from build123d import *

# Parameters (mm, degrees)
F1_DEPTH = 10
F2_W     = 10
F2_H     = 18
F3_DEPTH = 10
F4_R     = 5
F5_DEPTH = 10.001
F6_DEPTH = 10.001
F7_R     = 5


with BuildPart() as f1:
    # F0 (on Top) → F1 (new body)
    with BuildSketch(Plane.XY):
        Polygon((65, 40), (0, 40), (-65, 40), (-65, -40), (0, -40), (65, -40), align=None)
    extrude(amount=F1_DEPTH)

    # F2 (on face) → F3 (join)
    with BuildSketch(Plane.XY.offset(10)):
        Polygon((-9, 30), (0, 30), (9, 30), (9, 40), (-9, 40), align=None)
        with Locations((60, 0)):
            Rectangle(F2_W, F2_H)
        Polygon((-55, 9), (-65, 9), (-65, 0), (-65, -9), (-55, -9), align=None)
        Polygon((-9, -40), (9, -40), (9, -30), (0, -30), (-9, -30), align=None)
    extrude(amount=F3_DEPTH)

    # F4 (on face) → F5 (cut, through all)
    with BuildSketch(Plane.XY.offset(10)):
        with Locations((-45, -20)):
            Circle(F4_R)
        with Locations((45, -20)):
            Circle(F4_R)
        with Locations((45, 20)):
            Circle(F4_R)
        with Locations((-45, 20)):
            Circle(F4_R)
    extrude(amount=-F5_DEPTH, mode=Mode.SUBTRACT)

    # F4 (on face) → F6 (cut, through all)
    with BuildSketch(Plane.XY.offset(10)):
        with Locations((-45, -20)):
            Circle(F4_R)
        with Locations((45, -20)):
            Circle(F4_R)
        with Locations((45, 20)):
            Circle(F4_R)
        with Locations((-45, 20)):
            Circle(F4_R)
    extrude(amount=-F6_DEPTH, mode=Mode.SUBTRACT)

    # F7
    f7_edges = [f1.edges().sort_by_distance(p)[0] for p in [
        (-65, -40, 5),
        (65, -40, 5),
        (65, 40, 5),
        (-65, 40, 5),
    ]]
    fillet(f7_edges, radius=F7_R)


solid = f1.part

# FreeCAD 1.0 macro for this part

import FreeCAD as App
import Part
import Sketcher
from FreeCAD import Vector


def edges_at(feature, points):
    """Names of the edges that pass closest to the given points."""
    edges = feature.Shape.Edges
    near = lambda p: min(range(len(edges)), key=lambda i: edges[i].distToShape(Part.Vertex(*p))[0])
    return sorted({f"Edge{near(p) + 1}" for p in points})

doc = App.newDocument("Part")
body = doc.addObject("PartDesign::Body", "Body")

# Sketch on XY plane
sketch1 = doc.addObject("Sketcher::SketchObject", "Sketch")
body.addObject(sketch1)
sketch1.AttachmentSupport = (doc.XY_Plane, [""])
sketch1.MapMode = "FlatFace"
sketch1.addGeometry(Part.LineSegment(Vector(65, 40, 0), Vector(-65, 40, 0)), False)
sketch1.addGeometry(Part.LineSegment(Vector(-65, 40, 0), Vector(-65, -40, 0)), False)
sketch1.addGeometry(Part.LineSegment(Vector(-65, -40, 0), Vector(65, -40, 0)), False)
sketch1.addGeometry(Part.LineSegment(Vector(65, -40, 0), Vector(65, 40, 0)), False)
sketch1.addConstraint(Sketcher.Constraint("Coincident", 0, 2, 1, 1))
sketch1.addConstraint(Sketcher.Constraint("Coincident", 1, 2, 2, 1))
sketch1.addConstraint(Sketcher.Constraint("Coincident", 2, 2, 3, 1))
sketch1.addConstraint(Sketcher.Constraint("Coincident", 3, 2, 0, 1))
sketch1.addConstraint(Sketcher.Constraint("Horizontal", 0))
sketch1.addConstraint(Sketcher.Constraint("Vertical", 1))
sketch1.addConstraint(Sketcher.Constraint("Horizontal", 2))
sketch1.addConstraint(Sketcher.Constraint("Vertical", 3))
sketch1.addConstraint(Sketcher.Constraint("Symmetric", 0, 2, 2, 2, -1, 1))
sketch1.addConstraint(Sketcher.Constraint("DistanceX", 0, 2, 0, 1, 130.0))
sketch1.addConstraint(Sketcher.Constraint("DistanceY", 1, 2, 1, 1, 80.0))
pad1 = doc.addObject("PartDesign::Pad", "Pad")
body.addObject(pad1)
pad1.Profile = sketch1
pad1.Length = 10

# Sketch on XY plane
sketch2 = doc.addObject("Sketcher::SketchObject", "Sketch001")
body.addObject(sketch2)
sketch2.AttachmentSupport = (doc.XY_Plane, [""])
sketch2.MapMode = "FlatFace"
sketch2.AttachmentOffset = App.Placement(Vector(0, 0, 10), App.Rotation())
sketch2.addGeometry(Part.LineSegment(Vector(-9, 30, 0), Vector(9, 30, 0)), False)
sketch2.addGeometry(Part.LineSegment(Vector(9, 30, 0), Vector(9, 40, 0)), False)
sketch2.addGeometry(Part.LineSegment(Vector(9, 40, 0), Vector(-9, 40, 0)), False)
sketch2.addGeometry(Part.LineSegment(Vector(-9, 40, 0), Vector(-9, 30, 0)), False)
sketch2.addGeometry(Part.LineSegment(Vector(55, 9, 0), Vector(55, -9, 0)), False)
sketch2.addGeometry(Part.LineSegment(Vector(55, -9, 0), Vector(65, -9, 0)), False)
sketch2.addGeometry(Part.LineSegment(Vector(65, -9, 0), Vector(65, 9, 0)), False)
sketch2.addGeometry(Part.LineSegment(Vector(65, 9, 0), Vector(55, 9, 0)), False)
sketch2.addGeometry(Part.LineSegment(Vector(-55, 9, 0), Vector(-65, 9, 0)), False)
sketch2.addGeometry(Part.LineSegment(Vector(-65, 9, 0), Vector(-65, -9, 0)), False)
sketch2.addGeometry(Part.LineSegment(Vector(-65, -9, 0), Vector(-55, -9, 0)), False)
sketch2.addGeometry(Part.LineSegment(Vector(-55, -9, 0), Vector(-55, 9, 0)), False)
sketch2.addGeometry(Part.LineSegment(Vector(-9, -40, 0), Vector(9, -40, 0)), False)
sketch2.addGeometry(Part.LineSegment(Vector(9, -40, 0), Vector(9, -30, 0)), False)
sketch2.addGeometry(Part.LineSegment(Vector(9, -30, 0), Vector(-9, -30, 0)), False)
sketch2.addGeometry(Part.LineSegment(Vector(-9, -30, 0), Vector(-9, -40, 0)), False)
sketch2.addConstraint(Sketcher.Constraint("Coincident", 0, 2, 1, 1))
sketch2.addConstraint(Sketcher.Constraint("Coincident", 1, 2, 2, 1))
sketch2.addConstraint(Sketcher.Constraint("Coincident", 2, 2, 3, 1))
sketch2.addConstraint(Sketcher.Constraint("Coincident", 3, 2, 0, 1))
sketch2.addConstraint(Sketcher.Constraint("Coincident", 4, 2, 5, 1))
sketch2.addConstraint(Sketcher.Constraint("Coincident", 5, 2, 6, 1))
sketch2.addConstraint(Sketcher.Constraint("Coincident", 6, 2, 7, 1))
sketch2.addConstraint(Sketcher.Constraint("Coincident", 7, 2, 4, 1))
sketch2.addConstraint(Sketcher.Constraint("Coincident", 8, 2, 9, 1))
sketch2.addConstraint(Sketcher.Constraint("Coincident", 9, 2, 10, 1))
sketch2.addConstraint(Sketcher.Constraint("Coincident", 10, 2, 11, 1))
sketch2.addConstraint(Sketcher.Constraint("Coincident", 11, 2, 8, 1))
sketch2.addConstraint(Sketcher.Constraint("Coincident", 12, 2, 13, 1))
sketch2.addConstraint(Sketcher.Constraint("Coincident", 13, 2, 14, 1))
sketch2.addConstraint(Sketcher.Constraint("Coincident", 14, 2, 15, 1))
sketch2.addConstraint(Sketcher.Constraint("Coincident", 15, 2, 12, 1))
sketch2.addConstraint(Sketcher.Constraint("Horizontal", 0))
sketch2.addConstraint(Sketcher.Constraint("Vertical", 1))
sketch2.addConstraint(Sketcher.Constraint("Horizontal", 2))
sketch2.addConstraint(Sketcher.Constraint("Vertical", 3))
sketch2.addConstraint(Sketcher.Constraint("Vertical", 4))
sketch2.addConstraint(Sketcher.Constraint("Horizontal", 5))
sketch2.addConstraint(Sketcher.Constraint("Vertical", 6))
sketch2.addConstraint(Sketcher.Constraint("Horizontal", 7))
sketch2.addConstraint(Sketcher.Constraint("Horizontal", 8))
sketch2.addConstraint(Sketcher.Constraint("Vertical", 9))
sketch2.addConstraint(Sketcher.Constraint("Horizontal", 10))
sketch2.addConstraint(Sketcher.Constraint("Vertical", 11))
sketch2.addConstraint(Sketcher.Constraint("Horizontal", 12))
sketch2.addConstraint(Sketcher.Constraint("Vertical", 13))
sketch2.addConstraint(Sketcher.Constraint("Horizontal", 14))
sketch2.addConstraint(Sketcher.Constraint("Vertical", 15))
sketch2.addConstraint(Sketcher.Constraint("Symmetric", 5, 2, 8, 2, -1, 1))
sketch2.addConstraint(Sketcher.Constraint("Symmetric", 7, 2, 10, 2, -1, 1))
sketch2.addConstraint(Sketcher.Constraint("Symmetric", 2, 2, 12, 2, -1, 1))
sketch2.addConstraint(Sketcher.Constraint("Symmetric", 0, 2, 14, 2, -1, 1))
sketch2.addConstraint(Sketcher.Constraint("Horizontal", 7, 2, 8, 2))
sketch2.addConstraint(Sketcher.Constraint("Vertical", 1, 2, 12, 2))
sketch2.addConstraint(Sketcher.Constraint("Equal", 10, 1))
sketch2.addConstraint(Sketcher.Constraint("Equal", 14, 4))
sketch2.addConstraint(Sketcher.Constraint("DistanceX", 0, 1, 0, 2, 18.0))
sketch2.addConstraint(Sketcher.Constraint("DistanceX", 5, 1, 5, 2, 10.0))
sketch2.addConstraint(Sketcher.Constraint("DistanceY", -1, 1, 0, 2, 30.0))
sketch2.addConstraint(Sketcher.Constraint("DistanceX", -1, 1, 4, 2, 55.0))
pad2 = doc.addObject("PartDesign::Pad", "Pad001")
body.addObject(pad2)
pad2.Profile = sketch2
pad2.Length = 10

# Sketch on XY plane
sketch3 = doc.addObject("Sketcher::SketchObject", "Sketch002")
body.addObject(sketch3)
sketch3.AttachmentSupport = (doc.XY_Plane, [""])
sketch3.MapMode = "FlatFace"
sketch3.AttachmentOffset = App.Placement(Vector(0, 0, 10), App.Rotation())
sketch3.addGeometry(Part.Circle(Vector(-45, -20, 0), Vector(0, 0, 1), 5), False)
sketch3.addGeometry(Part.Circle(Vector(45, -20, 0), Vector(0, 0, 1), 5), False)
sketch3.addGeometry(Part.Circle(Vector(45, 20, 0), Vector(0, 0, 1), 5), False)
sketch3.addGeometry(Part.Circle(Vector(-45, 20, 0), Vector(0, 0, 1), 5), False)
sketch3.addConstraint(Sketcher.Constraint("Equal", 0, 1))
sketch3.addConstraint(Sketcher.Constraint("Equal", 1, 2))
sketch3.addConstraint(Sketcher.Constraint("Equal", 2, 3))
sketch3.addConstraint(Sketcher.Constraint("Symmetric", 0, 3, 2, 3, -1, 1))
sketch3.addConstraint(Sketcher.Constraint("Symmetric", 1, 3, 3, 3, -1, 1))
sketch3.addConstraint(Sketcher.Constraint("Symmetric", 0, 3, 1, 3, -2))
sketch3.addConstraint(Sketcher.Constraint("Diameter", 0, 10.0))
sketch3.addConstraint(Sketcher.Constraint("DistanceX", 0, 3, -1, 1, 45.0))
sketch3.addConstraint(Sketcher.Constraint("DistanceY", 0, 3, -1, 1, 20.0))
pocket1 = doc.addObject("PartDesign::Pocket", "Pocket")
body.addObject(pocket1)
pocket1.Profile = sketch3
pocket1.Type = "ThroughAll"

# Sketch on XY plane
sketch4 = doc.addObject("Sketcher::SketchObject", "Sketch003")
body.addObject(sketch4)
sketch4.AttachmentSupport = (doc.XY_Plane, [""])
sketch4.MapMode = "FlatFace"
sketch4.AttachmentOffset = App.Placement(Vector(0, 0, 10), App.Rotation())
sketch4.addGeometry(Part.Circle(Vector(-45, -20, 0), Vector(0, 0, 1), 5), False)
sketch4.addGeometry(Part.Circle(Vector(45, -20, 0), Vector(0, 0, 1), 5), False)
sketch4.addGeometry(Part.Circle(Vector(45, 20, 0), Vector(0, 0, 1), 5), False)
sketch4.addGeometry(Part.Circle(Vector(-45, 20, 0), Vector(0, 0, 1), 5), False)
sketch4.addConstraint(Sketcher.Constraint("Equal", 0, 1))
sketch4.addConstraint(Sketcher.Constraint("Equal", 1, 2))
sketch4.addConstraint(Sketcher.Constraint("Equal", 2, 3))
sketch4.addConstraint(Sketcher.Constraint("Symmetric", 0, 3, 2, 3, -1, 1))
sketch4.addConstraint(Sketcher.Constraint("Symmetric", 1, 3, 3, 3, -1, 1))
sketch4.addConstraint(Sketcher.Constraint("Symmetric", 0, 3, 1, 3, -2))
sketch4.addConstraint(Sketcher.Constraint("Diameter", 0, 10.0))
sketch4.addConstraint(Sketcher.Constraint("DistanceX", 0, 3, -1, 1, 45.0))
sketch4.addConstraint(Sketcher.Constraint("DistanceY", 0, 3, -1, 1, 20.0))
pocket2 = doc.addObject("PartDesign::Pocket", "Pocket001")
body.addObject(pocket2)
pocket2.Profile = sketch4
pocket2.Type = "ThroughAll"
doc.recompute()

fillet = doc.addObject("PartDesign::Fillet", "Fillet")
body.addObject(fillet)
fillet.Base = (pocket2, edges_at(pocket2, [
    (-65, -40, 5),
    (65, -40, 5),
    (65, 40, 5),
    (-65, 40, 5),
]))
fillet.Radius = 5

doc.recompute()
